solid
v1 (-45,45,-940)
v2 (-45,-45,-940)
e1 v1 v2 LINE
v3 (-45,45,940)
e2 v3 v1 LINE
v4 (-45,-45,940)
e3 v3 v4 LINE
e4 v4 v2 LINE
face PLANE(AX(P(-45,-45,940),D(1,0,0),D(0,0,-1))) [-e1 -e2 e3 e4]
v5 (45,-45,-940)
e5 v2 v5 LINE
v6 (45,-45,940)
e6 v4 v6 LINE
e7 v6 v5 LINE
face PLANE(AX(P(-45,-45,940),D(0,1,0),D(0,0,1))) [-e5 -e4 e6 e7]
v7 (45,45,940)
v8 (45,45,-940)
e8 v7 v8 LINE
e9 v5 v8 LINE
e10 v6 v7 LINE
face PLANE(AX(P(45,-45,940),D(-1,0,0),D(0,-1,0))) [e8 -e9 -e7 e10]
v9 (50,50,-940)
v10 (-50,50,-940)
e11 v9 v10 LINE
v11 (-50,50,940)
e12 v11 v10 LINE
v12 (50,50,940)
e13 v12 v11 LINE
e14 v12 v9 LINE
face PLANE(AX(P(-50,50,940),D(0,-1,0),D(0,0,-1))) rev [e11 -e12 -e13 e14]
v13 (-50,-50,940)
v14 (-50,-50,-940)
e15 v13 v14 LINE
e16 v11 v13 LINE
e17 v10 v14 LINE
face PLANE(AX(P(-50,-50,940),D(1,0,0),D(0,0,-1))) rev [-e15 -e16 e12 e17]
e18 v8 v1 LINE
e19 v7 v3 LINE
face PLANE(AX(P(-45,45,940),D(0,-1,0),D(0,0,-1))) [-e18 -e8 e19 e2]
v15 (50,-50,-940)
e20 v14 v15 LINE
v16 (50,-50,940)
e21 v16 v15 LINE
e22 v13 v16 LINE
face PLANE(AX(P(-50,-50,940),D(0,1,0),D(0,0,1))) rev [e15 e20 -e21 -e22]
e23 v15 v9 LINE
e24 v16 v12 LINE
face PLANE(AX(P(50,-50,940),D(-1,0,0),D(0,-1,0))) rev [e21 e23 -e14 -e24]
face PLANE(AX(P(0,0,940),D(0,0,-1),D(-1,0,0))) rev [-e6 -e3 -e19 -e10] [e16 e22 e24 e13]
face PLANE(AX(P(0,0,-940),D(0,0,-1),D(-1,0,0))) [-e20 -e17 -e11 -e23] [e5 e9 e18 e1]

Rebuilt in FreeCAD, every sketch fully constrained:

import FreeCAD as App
import Part
import Sketcher
from FreeCAD import Vector
Q = App.Units.Quantity

doc = App.newDocument("Part")
params = doc.addObject("Spreadsheet::Sheet", "Params")
for row, (alias, value) in enumerate([
    ("sketch1_width", "100 mm"),
    ("sketch1_width2", "90 mm"),
    ("pad1_length", "1880 mm"),
], start=1):
    params.set(f"A{row}", alias)
    params.set(f"B{row}", "=" + value)
    params.setAlias(f"B{row}", alias)

body = doc.addObject("PartDesign::Body", "Body")

sketch1 = body.newObject("Sketcher::SketchObject", "Sketch")
sketch1.AttachmentSupport = (doc.getObject("XY_Plane"), [""])
sketch1.MapMode = "FlatFace"
sketch1.addGeometry([
    Part.LineSegment(Vector(-50, 50, 0), Vector(-50, -50, 0)),
    Part.LineSegment(Vector(-50, -50, 0), Vector(50, -50, 0)),
    Part.LineSegment(Vector(50, -50, 0), Vector(50, 50, 0)),
    Part.LineSegment(Vector(50, 50, 0), Vector(-50, 50, 0)),
    Part.LineSegment(Vector(45, -45, 0), Vector(-45, -45, 0)),
    Part.LineSegment(Vector(-45, -45, 0), Vector(-45, 45, 0)),
    Part.LineSegment(Vector(-45, 45, 0), Vector(45, 45, 0)),
    Part.LineSegment(Vector(45, 45, 0), Vector(45, -45, 0)),
], False)
sketch1.addConstraint([
    Sketcher.Constraint("Coincident", 0, 2, 1, 1),
    Sketcher.Constraint("Coincident", 1, 2, 2, 1),
    Sketcher.Constraint("Coincident", 2, 2, 3, 1),
    Sketcher.Constraint("Coincident", 3, 2, 0, 1),
    Sketcher.Constraint("Coincident", 4, 2, 5, 1),
    Sketcher.Constraint("Coincident", 5, 2, 6, 1),
    Sketcher.Constraint("Coincident", 6, 2, 7, 1),
    Sketcher.Constraint("Coincident", 7, 2, 4, 1),
    Sketcher.Constraint("Vertical", 0),
    Sketcher.Constraint("Horizontal", 1),
    Sketcher.Constraint("Vertical", 2),
    Sketcher.Constraint("Horizontal", 3),
    Sketcher.Constraint("Horizontal", 4),
    Sketcher.Constraint("Vertical", 5),
    Sketcher.Constraint("Horizontal", 6),
    Sketcher.Constraint("Vertical", 7),
    Sketcher.Constraint("Symmetric", 0, 2, 2, 2, -1, 1),
    Sketcher.Constraint("Symmetric", 4, 2, 6, 2, -1, 1),
    Sketcher.Constraint("Equal", 3, 0),
    Sketcher.Constraint("Equal", 6, 5),
    Sketcher.Constraint("DistanceX", 1, 1, 1, 2, Q("100 mm")),
    Sketcher.Constraint("DistanceX", 4, 2, 4, 1, Q("90 mm")),
])
sketch1.setExpression("Constraints[20]", "Params.sketch1_width")
sketch1.setExpression("Constraints[21]", "Params.sketch1_width2")
pad1 = body.newObject("PartDesign::Pad", "Pad")
pad1.Profile = sketch1
pad1.setExpression("Length", "Params.pad1_length")
pad1.Midplane = True

doc.recompute()
